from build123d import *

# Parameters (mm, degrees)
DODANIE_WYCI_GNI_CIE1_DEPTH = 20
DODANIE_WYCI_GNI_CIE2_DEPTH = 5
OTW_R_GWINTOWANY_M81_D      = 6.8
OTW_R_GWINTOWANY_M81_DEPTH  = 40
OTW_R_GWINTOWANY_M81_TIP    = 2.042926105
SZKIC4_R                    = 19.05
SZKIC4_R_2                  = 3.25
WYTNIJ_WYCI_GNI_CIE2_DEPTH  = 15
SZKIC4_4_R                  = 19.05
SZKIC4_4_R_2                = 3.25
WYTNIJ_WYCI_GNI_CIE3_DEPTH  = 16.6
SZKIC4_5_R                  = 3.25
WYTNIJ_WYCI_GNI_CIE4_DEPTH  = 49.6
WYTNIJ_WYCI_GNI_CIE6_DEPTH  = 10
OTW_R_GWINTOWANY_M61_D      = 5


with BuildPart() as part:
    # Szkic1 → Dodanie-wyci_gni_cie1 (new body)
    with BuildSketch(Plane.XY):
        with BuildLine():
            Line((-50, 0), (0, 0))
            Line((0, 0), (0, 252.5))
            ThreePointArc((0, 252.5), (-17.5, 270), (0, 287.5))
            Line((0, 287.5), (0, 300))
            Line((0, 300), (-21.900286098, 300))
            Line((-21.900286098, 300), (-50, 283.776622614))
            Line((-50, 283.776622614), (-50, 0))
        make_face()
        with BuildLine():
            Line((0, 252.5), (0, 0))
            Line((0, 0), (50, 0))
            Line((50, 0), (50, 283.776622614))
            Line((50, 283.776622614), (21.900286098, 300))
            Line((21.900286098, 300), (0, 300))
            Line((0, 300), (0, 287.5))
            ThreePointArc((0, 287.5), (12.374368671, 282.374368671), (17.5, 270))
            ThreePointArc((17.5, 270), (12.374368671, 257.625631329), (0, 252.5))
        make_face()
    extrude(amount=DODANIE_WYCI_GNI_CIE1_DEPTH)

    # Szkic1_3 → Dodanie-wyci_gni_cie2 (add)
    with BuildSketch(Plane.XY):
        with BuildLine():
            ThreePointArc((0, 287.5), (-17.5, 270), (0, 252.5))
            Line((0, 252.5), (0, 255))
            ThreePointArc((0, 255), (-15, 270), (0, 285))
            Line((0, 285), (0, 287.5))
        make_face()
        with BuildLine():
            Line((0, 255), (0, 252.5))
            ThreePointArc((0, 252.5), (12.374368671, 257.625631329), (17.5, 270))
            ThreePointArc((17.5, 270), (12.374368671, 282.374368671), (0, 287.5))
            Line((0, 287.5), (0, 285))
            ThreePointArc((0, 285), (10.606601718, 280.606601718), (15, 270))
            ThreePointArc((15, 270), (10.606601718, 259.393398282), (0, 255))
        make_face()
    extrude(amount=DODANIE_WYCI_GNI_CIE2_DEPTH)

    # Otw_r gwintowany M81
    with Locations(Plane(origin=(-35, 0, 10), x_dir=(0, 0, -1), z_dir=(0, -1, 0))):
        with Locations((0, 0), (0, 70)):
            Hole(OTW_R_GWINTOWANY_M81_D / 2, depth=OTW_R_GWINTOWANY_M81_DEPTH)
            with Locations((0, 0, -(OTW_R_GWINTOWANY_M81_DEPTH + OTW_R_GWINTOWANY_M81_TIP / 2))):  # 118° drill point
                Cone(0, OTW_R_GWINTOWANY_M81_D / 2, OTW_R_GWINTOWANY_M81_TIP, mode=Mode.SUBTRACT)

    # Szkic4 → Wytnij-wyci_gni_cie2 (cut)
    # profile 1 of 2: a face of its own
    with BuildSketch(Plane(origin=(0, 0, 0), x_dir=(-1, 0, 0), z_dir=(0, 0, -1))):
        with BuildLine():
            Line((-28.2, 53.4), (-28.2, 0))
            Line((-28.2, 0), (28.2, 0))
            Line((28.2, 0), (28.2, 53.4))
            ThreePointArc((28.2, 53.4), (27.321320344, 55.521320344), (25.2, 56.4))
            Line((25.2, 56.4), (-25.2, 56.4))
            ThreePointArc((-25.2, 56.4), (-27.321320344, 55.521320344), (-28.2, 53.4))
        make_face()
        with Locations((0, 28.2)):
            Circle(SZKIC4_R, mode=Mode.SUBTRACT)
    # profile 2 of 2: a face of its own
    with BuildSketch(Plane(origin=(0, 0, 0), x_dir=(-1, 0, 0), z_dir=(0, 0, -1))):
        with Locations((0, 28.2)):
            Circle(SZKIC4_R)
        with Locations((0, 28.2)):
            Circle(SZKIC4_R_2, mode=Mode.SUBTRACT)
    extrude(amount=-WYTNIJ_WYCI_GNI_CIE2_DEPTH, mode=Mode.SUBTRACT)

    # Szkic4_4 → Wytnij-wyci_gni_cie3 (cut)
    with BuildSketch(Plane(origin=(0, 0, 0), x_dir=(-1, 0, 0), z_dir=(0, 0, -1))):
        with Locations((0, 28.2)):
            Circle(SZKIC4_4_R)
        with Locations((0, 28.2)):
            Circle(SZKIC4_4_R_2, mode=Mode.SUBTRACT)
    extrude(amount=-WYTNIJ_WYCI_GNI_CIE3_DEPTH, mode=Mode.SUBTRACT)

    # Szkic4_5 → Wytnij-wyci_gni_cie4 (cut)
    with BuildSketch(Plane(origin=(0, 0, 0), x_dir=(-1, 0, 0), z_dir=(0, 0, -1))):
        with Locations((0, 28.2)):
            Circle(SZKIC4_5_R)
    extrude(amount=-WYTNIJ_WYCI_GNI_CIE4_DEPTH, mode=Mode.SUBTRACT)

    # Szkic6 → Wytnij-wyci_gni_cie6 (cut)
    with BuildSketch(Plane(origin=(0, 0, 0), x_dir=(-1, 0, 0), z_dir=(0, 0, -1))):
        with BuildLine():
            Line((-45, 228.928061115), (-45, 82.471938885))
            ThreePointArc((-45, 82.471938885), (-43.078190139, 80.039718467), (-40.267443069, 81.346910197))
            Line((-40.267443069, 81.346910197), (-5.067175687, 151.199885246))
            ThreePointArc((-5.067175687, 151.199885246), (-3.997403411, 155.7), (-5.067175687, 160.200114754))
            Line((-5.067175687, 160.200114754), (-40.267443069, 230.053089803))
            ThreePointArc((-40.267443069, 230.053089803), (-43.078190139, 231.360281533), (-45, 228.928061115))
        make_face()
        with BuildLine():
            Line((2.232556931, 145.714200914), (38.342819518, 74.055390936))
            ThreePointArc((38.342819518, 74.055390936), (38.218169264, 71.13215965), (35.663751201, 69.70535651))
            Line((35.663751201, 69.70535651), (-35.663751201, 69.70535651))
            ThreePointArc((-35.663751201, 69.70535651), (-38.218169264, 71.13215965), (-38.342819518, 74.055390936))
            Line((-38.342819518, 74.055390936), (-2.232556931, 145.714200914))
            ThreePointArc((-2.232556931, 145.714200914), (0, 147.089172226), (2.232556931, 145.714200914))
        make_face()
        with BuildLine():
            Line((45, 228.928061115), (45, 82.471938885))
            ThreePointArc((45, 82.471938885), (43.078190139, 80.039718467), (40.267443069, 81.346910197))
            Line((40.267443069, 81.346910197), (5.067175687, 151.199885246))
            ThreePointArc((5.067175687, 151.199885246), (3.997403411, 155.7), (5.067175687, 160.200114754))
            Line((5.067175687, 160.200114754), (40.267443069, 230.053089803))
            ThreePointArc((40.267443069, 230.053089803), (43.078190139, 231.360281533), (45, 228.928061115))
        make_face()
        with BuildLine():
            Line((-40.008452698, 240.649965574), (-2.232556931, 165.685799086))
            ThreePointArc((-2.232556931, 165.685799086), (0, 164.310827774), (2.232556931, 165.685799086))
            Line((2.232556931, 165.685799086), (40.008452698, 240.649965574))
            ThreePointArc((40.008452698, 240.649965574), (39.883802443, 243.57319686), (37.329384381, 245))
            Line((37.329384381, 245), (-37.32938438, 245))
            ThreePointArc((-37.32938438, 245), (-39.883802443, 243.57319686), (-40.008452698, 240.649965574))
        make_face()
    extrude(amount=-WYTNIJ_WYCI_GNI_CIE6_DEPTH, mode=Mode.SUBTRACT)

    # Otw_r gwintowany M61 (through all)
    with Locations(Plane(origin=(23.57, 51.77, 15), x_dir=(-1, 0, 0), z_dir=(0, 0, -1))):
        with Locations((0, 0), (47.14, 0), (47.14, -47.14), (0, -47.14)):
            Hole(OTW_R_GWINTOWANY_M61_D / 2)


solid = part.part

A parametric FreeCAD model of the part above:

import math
import FreeCAD as App
import Part
import Sketcher
from FreeCAD import Vector
Q = App.Units.Quantity

doc = App.newDocument("Part")
body = doc.addObject("PartDesign::Body", "Body")

# Sketch on XY plane
sketch1 = doc.addObject("Sketcher::SketchObject", "Sketch")
body.addObject(sketch1)
sketch1.AttachmentSupport = (doc.XY_Plane, [""])
sketch1.MapMode = "FlatFace"
sketch1.addGeometry([
    Part.LineSegment(Vector(-50, 0, 0), Vector(50, 0, 0)),  # 0
    Part.LineSegment(Vector(50, 0, 0), Vector(50, 284, 0)),  # 1
    Part.LineSegment(Vector(50, 284, 0), Vector(22, 300, 0)),  # 2
    Part.LineSegment(Vector(22, 300, 0), Vector(-22, 300, 0)),  # 3
    Part.LineSegment(Vector(-22, 300, 0), Vector(-50, 284, 0)),  # 4
    Part.LineSegment(Vector(-50, 284, 0), Vector(-50, 0, 0)),  # 5
    Part.ArcOfCircle(Part.Circle(Vector(0, 270, 0), Vector(0, 0, 1), 18), math.radians(90), math.radians(270)),  # 6
    Part.ArcOfCircle(Part.Circle(Vector(0, 270, 0), Vector(0, 0, 1), 17), math.radians(0), math.radians(90)),  # 7
    Part.ArcOfCircle(Part.Circle(Vector(0, 270, 0), Vector(0, 0, 1), 17), math.radians(-90), math.radians(0)),  # 8
], False)
sketch1.addConstraint([
    Sketcher.Constraint("Coincident", 0, 2, 1, 1),
    Sketcher.Constraint("Coincident", 1, 2, 2, 1),
    Sketcher.Constraint("Coincident", 2, 2, 3, 1),
    Sketcher.Constraint("Coincident", 3, 2, 4, 1),
    Sketcher.Constraint("Coincident", 4, 2, 5, 1),
    Sketcher.Constraint("Coincident", 5, 2, 0, 1),
    Sketcher.Constraint("Tangent", 6, 1, 7, 2),
    Sketcher.Constraint("Tangent", 7, 1, 8, 2),
    Sketcher.Constraint("Tangent", 8, 1, 6, 2),
    Sketcher.Constraint("Horizontal", 0),
    Sketcher.Constraint("Vertical", 1),
    Sketcher.Constraint("Horizontal", 3),
    Sketcher.Constraint("Vertical", 5),
    Sketcher.Constraint("Symmetric", 0, 2, 5, 2, -1, 1),
    Sketcher.Constraint("PointOnObject", 6, 3, -2),
    Sketcher.Constraint("PointOnObject", 6, 1, -2),
    Sketcher.Constraint("PointOnObject", 8, 1, -2),
    Sketcher.Constraint("Horizontal", 1, 2, 4, 2),
    Sketcher.Constraint("Horizontal", 8, 3, 7, 1),
    Sketcher.Constraint("Equal", 2, 4),
    Sketcher.Constraint("Radius", 6, 17.5),
    Sketcher.Constraint("DistanceX", 0, 1, 0, 2, 100.0),
    Sketcher.Constraint("Angle", 2, Q("150 deg")),
    Sketcher.Constraint("DistanceY", -1, 1, 6, 3, 270.0),
    Sketcher.Constraint("DistanceY", -1, 1, 2, 2, 300.0),
    Sketcher.Constraint("DistanceX", 3, 2, 3, 1, 43.800572),
])
pad1 = doc.addObject("PartDesign::Pad", "Pad")
body.addObject(pad1)
pad1.Profile = sketch1
pad1.Length = 20

# Sketch on XY plane
sketch2 = doc.addObject("Sketcher::SketchObject", "Sketch001")
body.addObject(sketch2)
sketch2.AttachmentSupport = (doc.XY_Plane, [""])
sketch2.MapMode = "FlatFace"
sketch2.addGeometry([
    Part.ArcOfCircle(Part.Circle(Vector(0, 270, 0), Vector(0, 0, 1), 18), math.radians(90), math.radians(270)),  # 0
    Part.ArcOfCircle(Part.Circle(Vector(0, 270, 0), Vector(0, 0, 1), 17), math.radians(-90), math.radians(0)),  # 1
    Part.ArcOfCircle(Part.Circle(Vector(0, 270, 0), Vector(0, 0, 1), 17), math.radians(0), math.radians(90)),  # 2
    Part.ArcOfCircle(Part.Circle(Vector(0, 270, 0), Vector(0, 0, 1), 15), math.radians(90), math.radians(270)),  # 3
    Part.ArcOfCircle(Part.Circle(Vector(0, 270, 0), Vector(0, 0, 1), 15), math.radians(0), math.radians(90)),  # 4
    Part.ArcOfCircle(Part.Circle(Vector(0, 270, 0), Vector(0, 0, 1), 15), math.radians(-90), math.radians(0)),  # 5
], False)
sketch2.addConstraint([
    Sketcher.Constraint("Tangent", 0, 2, 1, 1),
    Sketcher.Constraint("Tangent", 1, 2, 2, 1),
    Sketcher.Constraint("Tangent", 2, 2, 0, 1),
    Sketcher.Constraint("Tangent", 3, 1, 4, 2),
    Sketcher.Constraint("Tangent", 4, 1, 5, 2),
    Sketcher.Constraint("Tangent", 5, 1, 3, 2),
    Sketcher.Constraint("Coincident", 3, 3, 0, 3),
    Sketcher.Constraint("PointOnObject", 0, 3, -2),
    Sketcher.Constraint("PointOnObject", 0, 2, -2),
    Sketcher.Constraint("PointOnObject", 2, 2, -2),
    Sketcher.Constraint("PointOnObject", 3, 1, -2),
    Sketcher.Constraint("PointOnObject", 5, 1, -2),
    Sketcher.Constraint("Horizontal", 5, 3, 1, 2),
    Sketcher.Constraint("Horizontal", 1, 2, 4, 1),
    Sketcher.Constraint("Radius", 3, 15.0),
    Sketcher.Constraint("Radius", 0, 17.5),
    Sketcher.Constraint("DistanceY", -1, 1, 0, 3, 270.0),
])
pad2 = doc.addObject("PartDesign::Pad", "Pad001")
body.addObject(pad2)
pad2.Profile = sketch2
pad2.Length = 5

# Sketch on XZ plane
sketch3 = doc.addObject("Sketcher::SketchObject", "Sketch002")
body.addObject(sketch3)
sketch3.AttachmentSupport = (doc.XZ_Plane, [""])
sketch3.MapMode = "FlatFace"
sketch3.addGeometry([
    Part.Circle(Vector(-35, 10, 0), Vector(0, 0, 1), 3.4),
    Part.Circle(Vector(35, 10, 0), Vector(0, 0, 1), 3.4),
], False)
sketch3.addConstraint([
    Sketcher.Constraint("Equal", 0, 1),
    Sketcher.Constraint("Symmetric", 0, 3, 1, 3, -2),
    Sketcher.Constraint("Diameter", 0, 6.8),
    Sketcher.Constraint("DistanceX", 0, 3, -1, 1, 35.0),
    Sketcher.Constraint("DistanceY", -1, 1, 0, 3, 10.0),
])
doc.recompute()
hole = doc.addObject("PartDesign::Hole", "Hole")
body.addObject(hole)
hole.Profile = sketch3
hole.ThreadType = "None"
hole.Diameter = 6.8
hole.DepthType = "Dimension"
hole.Depth = 40
hole.DrillPoint = "Angled"
hole.DrillPointAngle = 118

# Sketch on XY plane
sketch4 = doc.addObject("Sketcher::SketchObject", "Sketch003")
body.addObject(sketch4)
sketch4.AttachmentSupport = (doc.XY_Plane, [""])
sketch4.MapMode = "FlatFace"
sketch4.addGeometry([
    Part.LineSegment(Vector(28.2, 53.4, 0), Vector(28.2, 0, 0)),  # 0
    Part.LineSegment(Vector(28.2, 0, 0), Vector(-28.2, 0, 0)),  # 1
    Part.LineSegment(Vector(-28.2, 0, 0), Vector(-28.2, 53.4, 0)),  # 2
    Part.ArcOfCircle(Part.Circle(Vector(-25.2, 53.4, 0), Vector(0, 0, 1), 3), math.radians(90), math.radians(180)),  # 3
    Part.LineSegment(Vector(-25.2, 56.4, 0), Vector(25.2, 56.4, 0)),  # 4
    Part.ArcOfCircle(Part.Circle(Vector(25.2, 53.4, 0), Vector(0, 0, 1), 3), math.radians(0), math.radians(90)),  # 5
    Part.Circle(Vector(0, 28.2, 0), Vector(0, 0, 1), 3.2),  # 6
], False)
sketch4.addConstraint([
    Sketcher.Constraint("Coincident", 0, 2, 1, 1),
    Sketcher.Constraint("Coincident", 1, 2, 2, 1),
    Sketcher.Constraint("Tangent", 2, 2, 3, 2),
    Sketcher.Constraint("Tangent", 3, 1, 4, 1),
    Sketcher.Constraint("Tangent", 4, 2, 5, 2),
    Sketcher.Constraint("Tangent", 5, 1, 0, 1),
    Sketcher.Constraint("Vertical", 0),
    Sketcher.Constraint("Horizontal", 1),
    Sketcher.Constraint("Vertical", 2),
    Sketcher.Constraint("Horizontal", 4),
    Sketcher.Constraint("Equal", 3, 5),
    Sketcher.Constraint("Symmetric", 0, 2, 1, 2, -1, 1),
    Sketcher.Constraint("PointOnObject", 6, 3, -2),
    Sketcher.Constraint("Radius", 3, 3.0),
    Sketcher.Constraint("Diameter", 6, 6.5),
    Sketcher.Constraint("DistanceX", 1, 2, 1, 1, 56.4),
    Sketcher.Constraint("DistanceY", 0, 2, 0, 1, 53.4),
    Sketcher.Constraint("DistanceY", -1, 1, 6, 3, 28.2),
])
pocket1 = doc.addObject("PartDesign::Pocket", "Pocket")
body.addObject(pocket1)
pocket1.Profile = sketch4
pocket1.Length = 15
pocket1.Reversed = True

# Sketch on XY plane
sketch5 = doc.addObject("Sketcher::SketchObject", "Sketch004")
body.addObject(sketch5)
sketch5.AttachmentSupport = (doc.XY_Plane, [""])
sketch5.MapMode = "FlatFace"
sketch5.addGeometry([
    Part.Circle(Vector(0, 28.2, 0), Vector(0, 0, 1), 19.1),
    Part.Circle(Vector(0, 28.2, 0), Vector(0, 0, 1), 3.2),
], False)
sketch5.addConstraint([
    Sketcher.Constraint("Coincident", 1, 3, 0, 3),
    Sketcher.Constraint("PointOnObject", 0, 3, -2),
    Sketcher.Constraint("Diameter", 0, 38.1),
    Sketcher.Constraint("Diameter", 1, 6.5),
    Sketcher.Constraint("DistanceY", -1, 1, 0, 3, 28.2),
])
pocket2 = doc.addObject("PartDesign::Pocket", "Pocket001")
body.addObject(pocket2)
pocket2.Profile = sketch5
pocket2.Length = 16.6
pocket2.Reversed = True

# Sketch on XY plane
sketch6 = doc.addObject("Sketcher::SketchObject", "Sketch005")
body.addObject(sketch6)
sketch6.AttachmentSupport = (doc.XY_Plane, [""])
sketch6.MapMode = "FlatFace"
sketch6.addGeometry(Part.Circle(Vector(0, 28.2, 0), Vector(0, 0, 1), 3.2), False)
sketch6.addConstraint([
    Sketcher.Constraint("PointOnObject", 0, 3, -2),
    Sketcher.Constraint("Diameter", 0, 6.5),
    Sketcher.Constraint("DistanceY", -1, 1, 0, 3, 28.2),
])
pocket3 = doc.addObject("PartDesign::Pocket", "Pocket002")
body.addObject(pocket3)
pocket3.Profile = sketch6
pocket3.Length = 49.6
pocket3.Reversed = True

# Sketch on XY plane
sketch7 = doc.addObject("Sketcher::SketchObject", "Sketch006")
body.addObject(sketch7)
sketch7.AttachmentSupport = (doc.XY_Plane, [""])
sketch7.MapMode = "FlatFace"
sketch7.addGeometry([
    Part.LineSegment(Vector(45, 228.9, 0), Vector(45, 82.5, 0)),  # 0
    Part.ArcOfCircle(Part.Circle(Vector(42.5, 82.5, 0), Vector(0, 0, 1), 2.5), math.radians(-153), math.radians(0)),  # 1
    Part.LineSegment(Vector(40.3, 81.3, 0), Vector(5.1, 151.2, 0)),  # 2
    Part.ArcOfCircle(Part.Circle(Vector(14, 155.7, 0), Vector(0, 0, 1), 10), math.radians(153), math.radians(207)),  # 3
    Part.LineSegment(Vector(5.1, 160.2, 0), Vector(40.3, 230.1, 0)),  # 4
    Part.ArcOfCircle(Part.Circle(Vector(42.5, 228.9, 0), Vector(0, 0, 1), 2.5), math.radians(0), math.radians(153)),  # 5
    Part.LineSegment(Vector(-38.3, 74.1, 0), Vector(-2.2, 145.7, 0)),  # 6
    Part.ArcOfCircle(Part.Circle(Vector(0, 144.6, 0), Vector(0, 0, 1), 2.5), math.radians(27), math.radians(153)),  # 7
    Part.LineSegment(Vector(2.2, 145.7, 0), Vector(38.3, 74.1, 0)),  # 8
    Part.ArcOfCircle(Part.Circle(Vector(35.7, 72.7, 0), Vector(0, 0, 1), 3), math.radians(-90), math.radians(27)),  # 9
    Part.LineSegment(Vector(35.7, 69.7, 0), Vector(-35.7, 69.7, 0)),  # 10
    Part.ArcOfCircle(Part.Circle(Vector(-35.7, 72.7, 0), Vector(0, 0, 1), 3), math.radians(153), math.radians(270)),  # 11
    Part.LineSegment(Vector(-45, 82.5, 0), Vector(-45, 228.9, 0)),  # 12
    Part.ArcOfCircle(Part.Circle(Vector(-42.5, 228.9, 0), Vector(0, 0, 1), 2.5), math.radians(27), math.radians(180)),  # 13
    Part.LineSegment(Vector(-40.3, 230.1, 0), Vector(-5.1, 160.2, 0)),  # 14
    Part.ArcOfCircle(Part.Circle(Vector(-14, 155.7, 0), Vector(0, 0, 1), 10), math.radians(-27), math.radians(27)),  # 15
    Part.LineSegment(Vector(-5.1, 151.2, 0), Vector(-40.3, 81.3, 0)),  # 16
    Part.ArcOfCircle(Part.Circle(Vector(-42.5, 82.5, 0), Vector(0, 0, 1), 2.5), math.radians(180), math.radians(333)),  # 17
    Part.LineSegment(Vector(40, 240.6, 0), Vector(2.2, 165.7, 0)),  # 18
    Part.ArcOfCircle(Part.Circle(Vector(0, 166.8, 0), Vector(0, 0, 1), 2.5), math.radians(-153), math.radians(-27)),  # 19
    Part.LineSegment(Vector(-2.2, 165.7, 0), Vector(-40, 240.6, 0)),  # 20
    Part.ArcOfCircle(Part.Circle(Vector(-37.3, 242, 0), Vector(0, 0, 1), 3), math.radians(90), math.radians(207)),  # 21
    Part.LineSegment(Vector(-37.3, 245, 0), Vector(37.3, 245, 0)),  # 22
    Part.ArcOfCircle(Part.Circle(Vector(37.3, 242, 0), Vector(0, 0, 1), 3), math.radians(-27), math.radians(90)),  # 23
], False)
sketch7.addConstraint([
    Sketcher.Constraint("Tangent", 0, 2, 1, 2),
    Sketcher.Constraint("Tangent", 1, 1, 2, 1),
    Sketcher.Constraint("Tangent", 2, 2, 3, 2),
    Sketcher.Constraint("Tangent", 3, 1, 4, 1),
    Sketcher.Constraint("Tangent", 4, 2, 5, 2),
    Sketcher.Constraint("Tangent", 5, 1, 0, 1),
    Sketcher.Constraint("Tangent", 6, 2, 7, 2),
    Sketcher.Constraint("Tangent", 7, 1, 8, 1),
    Sketcher.Constraint("Tangent", 8, 2, 9, 2),
    Sketcher.Constraint("Tangent", 9, 1, 10, 1),
    Sketcher.Constraint("Tangent", 10, 2, 11, 2),
    Sketcher.Constraint("Tangent", 11, 1, 6, 1),
    Sketcher.Constraint("Tangent", 12, 2, 13, 2),
    Sketcher.Constraint("Tangent", 13, 1, 14, 1),
    Sketcher.Constraint("Tangent", 14, 2, 15, 2),
    Sketcher.Constraint("Tangent", 15, 1, 16, 1),
    Sketcher.Constraint("Tangent", 16, 2, 17, 2),
    Sketcher.Constraint("Tangent", 17, 1, 12, 1),
    Sketcher.Constraint("Tangent", 18, 2, 19, 2),
    Sketcher.Constraint("Tangent", 19, 1, 20, 1),
    Sketcher.Constraint("Tangent", 20, 2, 21, 2),
    Sketcher.Constraint("Tangent", 21, 1, 22, 1),
    Sketcher.Constraint("Tangent", 22, 2, 23, 2),
    Sketcher.Constraint("Tangent", 23, 1, 18, 1),
    Sketcher.Constraint("Vertical", 0),
    Sketcher.Constraint("Horizontal", 10),
    Sketcher.Constraint("Vertical", 12),
    Sketcher.Constraint("Horizontal", 22),
    Sketcher.Constraint("Equal", 1, 5),
    Sketcher.Constraint("Equal", 5, 7),
    Sketcher.Constraint("Equal", 9, 11),
    Sketcher.Constraint("Equal", 7, 13),
    Sketcher.Constraint("Equal", 3, 15),
    Sketcher.Constraint("Equal", 13, 17),
    Sketcher.Constraint("Equal", 17, 19),
    Sketcher.Constraint("Equal", 11, 21),
    Sketcher.Constraint("Equal", 21, 23),
    Sketcher.Constraint("Symmetric", 5, 3, 13, 3, -2),
    Sketcher.Constraint("Symmetric", 3, 3, 15, 3, -2),
    Sketcher.Constraint("Symmetric", 6, 2, 7, 1, -2),
    Sketcher.Constraint("Symmetric", 18, 2, 19, 1, -2),
    Sketcher.Constraint("Parallel", 4, 6),
    Sketcher.Constraint("Parallel", 2, 8),
    Sketcher.Constraint("Parallel", 6, 16),
    Sketcher.Constraint("Parallel", 16, 18),
    Sketcher.Constraint("Radius", 3, 10.0),
    Sketcher.Constraint("Radius", 9, 3.0),
    Sketcher.Constraint("Radius", 1, 2.5),
    Sketcher.Constraint("DistanceY", -1, 1, 21, 3, 242.0),
    Sketcher.Constraint("DistanceX", -1, 1, 0, 2, 45.0),
    Sketcher.Constraint("DistanceY", -1, 1, 3, 3, 155.7),
    Sketcher.Constraint("DistanceX", 22, 1, 22, 2, 74.658769),
    Sketcher.Constraint("DistanceY", -1, 1, 6, 2, 145.714201),
    Sketcher.Constraint("DistanceY", -1, 1, 18, 2, 165.685799),
    Sketcher.Constraint("Distance", 2, 78.220822),
    Sketcher.Constraint("Distance", 6, 80.242982),
])
pocket4 = doc.addObject("PartDesign::Pocket", "Pocket003")
body.addObject(pocket4)
pocket4.Profile = sketch7
pocket4.Length = 10
pocket4.Reversed = True

# Sketch on XY plane
sketch8 = doc.addObject("Sketcher::SketchObject", "Sketch007")
body.addObject(sketch8)
sketch8.AttachmentSupport = (doc.XY_Plane, [""])
sketch8.MapMode = "FlatFace"
sketch8.AttachmentOffset = App.Placement(Vector(0, 0, 15), App.Rotation())
sketch8.addGeometry([
    Part.Circle(Vector(23.6, 51.8, 0), Vector(0, 0, 1), 2.5),
    Part.Circle(Vector(-23.6, 51.8, 0), Vector(0, 0, 1), 2.5),
    Part.Circle(Vector(-23.6, 4.6, 0), Vector(0, 0, 1), 2.5),
    Part.Circle(Vector(23.6, 4.6, 0), Vector(0, 0, 1), 2.5),
], False)
sketch8.addConstraint([
    Sketcher.Constraint("Equal", 0, 1),
    Sketcher.Constraint("Equal", 1, 2),
    Sketcher.Constraint("Equal", 2, 3),
    Sketcher.Constraint("Symmetric", 0, 3, 1, 3, -2),
    Sketcher.Constraint("Symmetric", 2, 3, 3, 3, -2),
    Sketcher.Constraint("Vertical", 1, 3, 2, 3),
    Sketcher.Constraint("Diameter", 0, 5.0),
    Sketcher.Constraint("DistanceX", -1, 1, 0, 3, 23.57),
    Sketcher.Constraint("DistanceY", -1, 1, 0, 3, 51.77),
    Sketcher.Constraint("DistanceY", -1, 1, 2, 3, 4.63),
])
doc.recompute()
hole2 = doc.addObject("PartDesign::Hole", "Hole001")
body.addObject(hole2)
hole2.Profile = sketch8
hole2.ThreadType = "None"
hole2.Diameter = 5
hole2.DepthType = "ThroughAll"
hole2.Reversed = True

doc.recompute()
